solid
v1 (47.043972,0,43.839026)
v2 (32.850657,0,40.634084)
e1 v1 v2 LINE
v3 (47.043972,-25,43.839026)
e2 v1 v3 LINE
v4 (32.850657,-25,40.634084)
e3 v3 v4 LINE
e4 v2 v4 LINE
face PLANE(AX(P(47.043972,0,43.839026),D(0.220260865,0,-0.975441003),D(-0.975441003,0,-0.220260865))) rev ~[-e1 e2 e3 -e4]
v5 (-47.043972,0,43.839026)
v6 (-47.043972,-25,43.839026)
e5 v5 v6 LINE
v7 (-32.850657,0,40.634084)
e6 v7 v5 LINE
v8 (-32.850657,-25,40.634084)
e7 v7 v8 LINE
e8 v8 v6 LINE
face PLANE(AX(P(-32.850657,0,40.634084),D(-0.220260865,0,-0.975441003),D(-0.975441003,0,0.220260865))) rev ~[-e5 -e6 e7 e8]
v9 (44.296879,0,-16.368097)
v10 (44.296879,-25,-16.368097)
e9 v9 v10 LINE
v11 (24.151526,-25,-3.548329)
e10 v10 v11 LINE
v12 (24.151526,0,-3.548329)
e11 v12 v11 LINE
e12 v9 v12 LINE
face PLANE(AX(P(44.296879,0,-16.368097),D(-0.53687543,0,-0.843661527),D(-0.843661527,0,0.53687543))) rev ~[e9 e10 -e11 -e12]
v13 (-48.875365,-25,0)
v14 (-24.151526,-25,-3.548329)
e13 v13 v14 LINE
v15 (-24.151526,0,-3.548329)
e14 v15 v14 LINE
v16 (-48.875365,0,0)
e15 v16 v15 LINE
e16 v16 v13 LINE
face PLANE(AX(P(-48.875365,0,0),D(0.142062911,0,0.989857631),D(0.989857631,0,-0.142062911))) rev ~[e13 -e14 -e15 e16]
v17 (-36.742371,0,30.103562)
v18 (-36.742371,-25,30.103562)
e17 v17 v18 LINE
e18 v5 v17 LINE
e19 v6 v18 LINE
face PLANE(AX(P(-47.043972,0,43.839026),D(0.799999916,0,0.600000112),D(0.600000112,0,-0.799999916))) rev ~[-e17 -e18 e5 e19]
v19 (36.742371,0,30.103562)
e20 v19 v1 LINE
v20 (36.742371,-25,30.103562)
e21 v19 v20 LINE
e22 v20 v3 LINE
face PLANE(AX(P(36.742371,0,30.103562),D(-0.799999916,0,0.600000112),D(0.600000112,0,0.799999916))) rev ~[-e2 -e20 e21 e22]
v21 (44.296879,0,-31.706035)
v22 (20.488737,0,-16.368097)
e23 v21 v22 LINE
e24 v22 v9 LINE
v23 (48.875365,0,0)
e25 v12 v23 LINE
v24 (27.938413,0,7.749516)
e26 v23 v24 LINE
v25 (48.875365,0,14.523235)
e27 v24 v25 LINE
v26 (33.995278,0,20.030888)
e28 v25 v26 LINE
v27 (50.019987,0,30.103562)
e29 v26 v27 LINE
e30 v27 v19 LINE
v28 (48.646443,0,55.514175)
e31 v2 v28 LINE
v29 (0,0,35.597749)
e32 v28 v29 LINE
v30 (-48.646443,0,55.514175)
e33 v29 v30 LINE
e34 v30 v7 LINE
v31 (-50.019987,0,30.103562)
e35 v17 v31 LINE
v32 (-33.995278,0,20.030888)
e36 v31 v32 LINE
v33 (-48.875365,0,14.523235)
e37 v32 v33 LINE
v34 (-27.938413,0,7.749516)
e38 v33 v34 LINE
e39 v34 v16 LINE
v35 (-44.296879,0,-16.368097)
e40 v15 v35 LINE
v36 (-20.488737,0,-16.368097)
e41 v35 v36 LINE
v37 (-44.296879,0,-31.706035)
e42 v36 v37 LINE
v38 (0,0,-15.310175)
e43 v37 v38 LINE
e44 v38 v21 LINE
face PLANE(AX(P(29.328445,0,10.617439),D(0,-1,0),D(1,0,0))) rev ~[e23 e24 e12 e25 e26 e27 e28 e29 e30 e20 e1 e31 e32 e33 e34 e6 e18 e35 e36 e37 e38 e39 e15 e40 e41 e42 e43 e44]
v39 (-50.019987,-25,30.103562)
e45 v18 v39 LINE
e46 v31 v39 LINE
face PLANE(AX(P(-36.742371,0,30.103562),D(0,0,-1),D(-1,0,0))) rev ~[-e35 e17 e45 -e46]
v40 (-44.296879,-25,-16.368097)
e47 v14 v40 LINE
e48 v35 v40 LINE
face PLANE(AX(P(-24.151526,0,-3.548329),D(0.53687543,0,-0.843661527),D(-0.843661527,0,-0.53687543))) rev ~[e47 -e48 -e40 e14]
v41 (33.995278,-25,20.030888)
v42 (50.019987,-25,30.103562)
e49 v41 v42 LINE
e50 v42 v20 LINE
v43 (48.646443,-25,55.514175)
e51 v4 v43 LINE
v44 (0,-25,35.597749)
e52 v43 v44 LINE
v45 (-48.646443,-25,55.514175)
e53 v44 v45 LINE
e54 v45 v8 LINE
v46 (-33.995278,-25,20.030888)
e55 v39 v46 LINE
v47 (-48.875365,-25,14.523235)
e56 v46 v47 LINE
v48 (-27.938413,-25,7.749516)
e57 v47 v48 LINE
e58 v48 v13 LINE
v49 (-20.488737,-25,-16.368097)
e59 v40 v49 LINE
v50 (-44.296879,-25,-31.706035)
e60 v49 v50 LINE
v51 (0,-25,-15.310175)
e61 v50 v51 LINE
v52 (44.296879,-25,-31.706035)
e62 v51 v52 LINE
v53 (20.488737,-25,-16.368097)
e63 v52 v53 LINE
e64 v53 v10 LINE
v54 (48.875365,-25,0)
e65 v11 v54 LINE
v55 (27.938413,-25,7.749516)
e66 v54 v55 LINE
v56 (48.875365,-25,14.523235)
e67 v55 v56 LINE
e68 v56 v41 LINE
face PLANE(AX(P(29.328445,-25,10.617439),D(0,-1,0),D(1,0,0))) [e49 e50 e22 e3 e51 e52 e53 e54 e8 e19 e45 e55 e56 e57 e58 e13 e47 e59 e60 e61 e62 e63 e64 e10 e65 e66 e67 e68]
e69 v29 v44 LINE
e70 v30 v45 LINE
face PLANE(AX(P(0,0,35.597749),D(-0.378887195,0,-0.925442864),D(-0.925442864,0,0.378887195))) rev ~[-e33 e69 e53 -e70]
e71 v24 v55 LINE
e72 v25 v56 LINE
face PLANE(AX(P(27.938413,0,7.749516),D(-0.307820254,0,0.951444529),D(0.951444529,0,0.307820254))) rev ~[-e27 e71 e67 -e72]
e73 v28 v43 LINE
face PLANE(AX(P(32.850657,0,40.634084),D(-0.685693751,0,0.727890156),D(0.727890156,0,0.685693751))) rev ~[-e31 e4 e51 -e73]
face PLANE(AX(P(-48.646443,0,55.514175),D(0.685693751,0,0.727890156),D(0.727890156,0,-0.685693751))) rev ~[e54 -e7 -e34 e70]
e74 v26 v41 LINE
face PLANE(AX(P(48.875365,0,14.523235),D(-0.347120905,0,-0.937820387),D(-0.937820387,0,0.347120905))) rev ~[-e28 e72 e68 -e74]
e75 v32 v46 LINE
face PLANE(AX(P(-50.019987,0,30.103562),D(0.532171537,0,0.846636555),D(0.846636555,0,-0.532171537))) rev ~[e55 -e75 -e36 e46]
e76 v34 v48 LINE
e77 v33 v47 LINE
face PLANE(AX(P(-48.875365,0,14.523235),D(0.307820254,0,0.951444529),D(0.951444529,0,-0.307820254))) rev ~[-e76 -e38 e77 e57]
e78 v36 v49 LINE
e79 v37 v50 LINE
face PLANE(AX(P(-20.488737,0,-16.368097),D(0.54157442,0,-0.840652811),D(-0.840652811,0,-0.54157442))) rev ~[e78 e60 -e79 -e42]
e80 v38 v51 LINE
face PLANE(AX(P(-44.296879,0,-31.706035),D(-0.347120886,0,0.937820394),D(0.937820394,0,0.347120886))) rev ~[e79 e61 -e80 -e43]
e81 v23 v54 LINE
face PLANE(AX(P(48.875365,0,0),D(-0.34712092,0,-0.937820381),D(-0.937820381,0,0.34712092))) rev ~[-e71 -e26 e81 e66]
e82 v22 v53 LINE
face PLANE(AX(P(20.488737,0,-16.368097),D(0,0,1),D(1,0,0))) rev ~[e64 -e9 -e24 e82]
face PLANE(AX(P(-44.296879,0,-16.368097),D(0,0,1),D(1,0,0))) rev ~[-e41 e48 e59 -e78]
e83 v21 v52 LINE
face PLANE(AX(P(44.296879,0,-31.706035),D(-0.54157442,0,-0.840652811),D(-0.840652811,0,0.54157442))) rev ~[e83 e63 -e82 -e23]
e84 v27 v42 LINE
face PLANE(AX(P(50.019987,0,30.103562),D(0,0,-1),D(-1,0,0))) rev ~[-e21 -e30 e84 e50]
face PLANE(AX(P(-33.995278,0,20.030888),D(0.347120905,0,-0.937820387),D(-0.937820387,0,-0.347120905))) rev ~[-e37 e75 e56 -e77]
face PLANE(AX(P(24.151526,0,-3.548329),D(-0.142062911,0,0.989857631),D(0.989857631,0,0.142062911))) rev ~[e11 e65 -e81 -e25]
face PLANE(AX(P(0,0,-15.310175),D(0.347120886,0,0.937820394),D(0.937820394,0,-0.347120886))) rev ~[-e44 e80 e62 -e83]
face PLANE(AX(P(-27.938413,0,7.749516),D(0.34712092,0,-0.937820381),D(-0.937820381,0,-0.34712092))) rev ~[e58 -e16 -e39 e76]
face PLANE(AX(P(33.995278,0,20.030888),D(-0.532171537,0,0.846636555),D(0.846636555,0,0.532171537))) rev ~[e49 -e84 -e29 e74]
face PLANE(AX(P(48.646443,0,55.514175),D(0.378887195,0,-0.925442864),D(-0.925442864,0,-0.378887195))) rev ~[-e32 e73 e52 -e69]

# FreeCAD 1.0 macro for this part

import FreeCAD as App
import Part
import Sketcher

V = App.Vector
Q = App.Units.Quantity


def add_polygon(sketch, points):
    """Adds a closed chain of lines whose ends are joined by coincident constraints."""
    first, n = sketch.GeometryCount, len(points)
    for a, b in zip(points, points[1:] + points[:1]):
        sketch.addGeometry(Part.LineSegment(App.Vector(*a, 0), App.Vector(*b, 0)), False)
    for i in range(n):
        sketch.addConstraint(Sketcher.Constraint("Coincident", first + i, 2, first + (i + 1) % n, 1))

doc = App.newDocument("Part")
body = doc.addObject("PartDesign::Body", "Body")

# Sketch on XZ plane
sketch1 = body.newObject("Sketcher::SketchObject", "Sketch")
sketch1.AttachmentSupport = (doc.getObject("XZ_Plane"), [""])
sketch1.MapMode = "FlatFace"
add_polygon(sketch1, [(49, 56), (0, 36), (-49, 56), (-33, 41), (-47, 44), (-37, 30), (-50, 30), (-34, 20), (-49, 15), (-28, 8), (-49, 0), (-24, -4), (-44, -16), (-20, -16), (-44, -32), (0, -15), (44, -32), (20, -16), (44, -16), (24, -4), (49, 0), (28, 8), (49, 15), (34, 20), (50, 30), (37, 30), (47, 44), (33, 41)])  # lines 0-27
sketch1.addConstraint([
    Sketcher.Constraint("Horizontal", 5),
    Sketcher.Constraint("Horizontal", 12),
    Sketcher.Constraint("Horizontal", 17),
    Sketcher.Constraint("Horizontal", 24),
    Sketcher.Constraint("Symmetric", 9, 2, 19, 2, -1, 1),
    Sketcher.Constraint("Symmetric", 13, 2, 15, 2, -2),
    Sketcher.Constraint("Symmetric", 12, 2, 16, 2, -2),
    Sketcher.Constraint("Symmetric", 10, 2, 18, 2, -2),
    Sketcher.Constraint("Symmetric", 8, 2, 20, 2, -2),
    Sketcher.Constraint("Symmetric", 7, 2, 21, 2, -2),
    Sketcher.Constraint("Symmetric", 6, 2, 22, 2, -2),
    Sketcher.Constraint("Symmetric", 5, 2, 23, 2, -2),
    Sketcher.Constraint("Symmetric", 3, 2, 25, 2, -2),
    Sketcher.Constraint("Symmetric", 2, 2, 26, 2, -2),
    Sketcher.Constraint("Symmetric", 1, 2, 27, 2, -2),
    Sketcher.Constraint("PointOnObject", 0, 2, -2),
    Sketcher.Constraint("PointOnObject", 9, 2, -1),
    Sketcher.Constraint("PointOnObject", 14, 2, -2),
    Sketcher.Constraint("Parallel", 7, 9),
    Sketcher.Constraint("Parallel", 9, 14),
    Sketcher.Constraint("Vertical", 7, 2, 9, 2),
    Sketcher.Constraint("Vertical", 11, 2, 13, 2),
    Sketcher.Constraint("Vertical", 15, 2, 17, 2),
    Sketcher.Constraint("Equal", 5, 24),
    Sketcher.Constraint("DistanceX", 12, 1, 12, 2, Q("23.808142 mm")),
    Sketcher.Constraint("DistanceX", 3, 2, 4, 2, Q("10.301601 mm")),
    Sketcher.Constraint("DistanceX", 11, 2, 6, 2, Q("10.301601 mm")),
    Sketcher.Constraint("Distance", 4, Q("17.169332 mm")),
    Sketcher.Constraint("Distance", 7, Q("15.86667 mm")),
    Sketcher.Constraint("Distance", 9, Q("22.325119 mm")),
    Sketcher.Constraint("Distance", 14, Q("47.233862 mm")),
    Sketcher.Constraint("DistanceX", 5, 2, 5, 1, Q("13.277616 mm")),
    Sketcher.Constraint("DistanceY", -1, 1, 0, 2, Q("35.597749 mm")),
    Sketcher.Constraint("DistanceX", 3, 2, -1, 1, Q("47.043972 mm")),
    Sketcher.Constraint("DistanceY", -1, 1, 4, 2, Q("30.103562 mm")),
    Sketcher.Constraint("DistanceY", -1, 1, 6, 2, Q("20.030888 mm")),
    Sketcher.Constraint("DistanceY", 10, 2, -1, 1, Q("3.548329 mm")),
    Sketcher.Constraint("DistanceX", 11, 2, -1, 1, Q("44.296879 mm")),
    Sketcher.Constraint("DistanceY", 2, 2, 1, 2, Q("14.880091 mm")),
    Sketcher.Constraint("DistanceX", 1, 2, 3, 2, Q("1.602471 mm")),
    Sketcher.Constraint("DistanceY", 3, 2, 1, 2, Q("11.675149 mm")),
    Sketcher.Constraint("DistanceX", 5, 2, 2, 2, Q("17.16933 mm")),
    Sketcher.Constraint("DistanceX", 9, 2, 10, 2, Q("24.723839 mm")),
    Sketcher.Constraint("DistanceY", 11, 2, 7, 2, Q("30.891332 mm")),
    Sketcher.Constraint("DistanceY", 13, 2, 11, 2, Q("15.337938 mm")),
])
pad1 = body.newObject("PartDesign::Pad", "Pad")
pad1.Profile = sketch1
pad1.Length = 25

doc.recompute()
